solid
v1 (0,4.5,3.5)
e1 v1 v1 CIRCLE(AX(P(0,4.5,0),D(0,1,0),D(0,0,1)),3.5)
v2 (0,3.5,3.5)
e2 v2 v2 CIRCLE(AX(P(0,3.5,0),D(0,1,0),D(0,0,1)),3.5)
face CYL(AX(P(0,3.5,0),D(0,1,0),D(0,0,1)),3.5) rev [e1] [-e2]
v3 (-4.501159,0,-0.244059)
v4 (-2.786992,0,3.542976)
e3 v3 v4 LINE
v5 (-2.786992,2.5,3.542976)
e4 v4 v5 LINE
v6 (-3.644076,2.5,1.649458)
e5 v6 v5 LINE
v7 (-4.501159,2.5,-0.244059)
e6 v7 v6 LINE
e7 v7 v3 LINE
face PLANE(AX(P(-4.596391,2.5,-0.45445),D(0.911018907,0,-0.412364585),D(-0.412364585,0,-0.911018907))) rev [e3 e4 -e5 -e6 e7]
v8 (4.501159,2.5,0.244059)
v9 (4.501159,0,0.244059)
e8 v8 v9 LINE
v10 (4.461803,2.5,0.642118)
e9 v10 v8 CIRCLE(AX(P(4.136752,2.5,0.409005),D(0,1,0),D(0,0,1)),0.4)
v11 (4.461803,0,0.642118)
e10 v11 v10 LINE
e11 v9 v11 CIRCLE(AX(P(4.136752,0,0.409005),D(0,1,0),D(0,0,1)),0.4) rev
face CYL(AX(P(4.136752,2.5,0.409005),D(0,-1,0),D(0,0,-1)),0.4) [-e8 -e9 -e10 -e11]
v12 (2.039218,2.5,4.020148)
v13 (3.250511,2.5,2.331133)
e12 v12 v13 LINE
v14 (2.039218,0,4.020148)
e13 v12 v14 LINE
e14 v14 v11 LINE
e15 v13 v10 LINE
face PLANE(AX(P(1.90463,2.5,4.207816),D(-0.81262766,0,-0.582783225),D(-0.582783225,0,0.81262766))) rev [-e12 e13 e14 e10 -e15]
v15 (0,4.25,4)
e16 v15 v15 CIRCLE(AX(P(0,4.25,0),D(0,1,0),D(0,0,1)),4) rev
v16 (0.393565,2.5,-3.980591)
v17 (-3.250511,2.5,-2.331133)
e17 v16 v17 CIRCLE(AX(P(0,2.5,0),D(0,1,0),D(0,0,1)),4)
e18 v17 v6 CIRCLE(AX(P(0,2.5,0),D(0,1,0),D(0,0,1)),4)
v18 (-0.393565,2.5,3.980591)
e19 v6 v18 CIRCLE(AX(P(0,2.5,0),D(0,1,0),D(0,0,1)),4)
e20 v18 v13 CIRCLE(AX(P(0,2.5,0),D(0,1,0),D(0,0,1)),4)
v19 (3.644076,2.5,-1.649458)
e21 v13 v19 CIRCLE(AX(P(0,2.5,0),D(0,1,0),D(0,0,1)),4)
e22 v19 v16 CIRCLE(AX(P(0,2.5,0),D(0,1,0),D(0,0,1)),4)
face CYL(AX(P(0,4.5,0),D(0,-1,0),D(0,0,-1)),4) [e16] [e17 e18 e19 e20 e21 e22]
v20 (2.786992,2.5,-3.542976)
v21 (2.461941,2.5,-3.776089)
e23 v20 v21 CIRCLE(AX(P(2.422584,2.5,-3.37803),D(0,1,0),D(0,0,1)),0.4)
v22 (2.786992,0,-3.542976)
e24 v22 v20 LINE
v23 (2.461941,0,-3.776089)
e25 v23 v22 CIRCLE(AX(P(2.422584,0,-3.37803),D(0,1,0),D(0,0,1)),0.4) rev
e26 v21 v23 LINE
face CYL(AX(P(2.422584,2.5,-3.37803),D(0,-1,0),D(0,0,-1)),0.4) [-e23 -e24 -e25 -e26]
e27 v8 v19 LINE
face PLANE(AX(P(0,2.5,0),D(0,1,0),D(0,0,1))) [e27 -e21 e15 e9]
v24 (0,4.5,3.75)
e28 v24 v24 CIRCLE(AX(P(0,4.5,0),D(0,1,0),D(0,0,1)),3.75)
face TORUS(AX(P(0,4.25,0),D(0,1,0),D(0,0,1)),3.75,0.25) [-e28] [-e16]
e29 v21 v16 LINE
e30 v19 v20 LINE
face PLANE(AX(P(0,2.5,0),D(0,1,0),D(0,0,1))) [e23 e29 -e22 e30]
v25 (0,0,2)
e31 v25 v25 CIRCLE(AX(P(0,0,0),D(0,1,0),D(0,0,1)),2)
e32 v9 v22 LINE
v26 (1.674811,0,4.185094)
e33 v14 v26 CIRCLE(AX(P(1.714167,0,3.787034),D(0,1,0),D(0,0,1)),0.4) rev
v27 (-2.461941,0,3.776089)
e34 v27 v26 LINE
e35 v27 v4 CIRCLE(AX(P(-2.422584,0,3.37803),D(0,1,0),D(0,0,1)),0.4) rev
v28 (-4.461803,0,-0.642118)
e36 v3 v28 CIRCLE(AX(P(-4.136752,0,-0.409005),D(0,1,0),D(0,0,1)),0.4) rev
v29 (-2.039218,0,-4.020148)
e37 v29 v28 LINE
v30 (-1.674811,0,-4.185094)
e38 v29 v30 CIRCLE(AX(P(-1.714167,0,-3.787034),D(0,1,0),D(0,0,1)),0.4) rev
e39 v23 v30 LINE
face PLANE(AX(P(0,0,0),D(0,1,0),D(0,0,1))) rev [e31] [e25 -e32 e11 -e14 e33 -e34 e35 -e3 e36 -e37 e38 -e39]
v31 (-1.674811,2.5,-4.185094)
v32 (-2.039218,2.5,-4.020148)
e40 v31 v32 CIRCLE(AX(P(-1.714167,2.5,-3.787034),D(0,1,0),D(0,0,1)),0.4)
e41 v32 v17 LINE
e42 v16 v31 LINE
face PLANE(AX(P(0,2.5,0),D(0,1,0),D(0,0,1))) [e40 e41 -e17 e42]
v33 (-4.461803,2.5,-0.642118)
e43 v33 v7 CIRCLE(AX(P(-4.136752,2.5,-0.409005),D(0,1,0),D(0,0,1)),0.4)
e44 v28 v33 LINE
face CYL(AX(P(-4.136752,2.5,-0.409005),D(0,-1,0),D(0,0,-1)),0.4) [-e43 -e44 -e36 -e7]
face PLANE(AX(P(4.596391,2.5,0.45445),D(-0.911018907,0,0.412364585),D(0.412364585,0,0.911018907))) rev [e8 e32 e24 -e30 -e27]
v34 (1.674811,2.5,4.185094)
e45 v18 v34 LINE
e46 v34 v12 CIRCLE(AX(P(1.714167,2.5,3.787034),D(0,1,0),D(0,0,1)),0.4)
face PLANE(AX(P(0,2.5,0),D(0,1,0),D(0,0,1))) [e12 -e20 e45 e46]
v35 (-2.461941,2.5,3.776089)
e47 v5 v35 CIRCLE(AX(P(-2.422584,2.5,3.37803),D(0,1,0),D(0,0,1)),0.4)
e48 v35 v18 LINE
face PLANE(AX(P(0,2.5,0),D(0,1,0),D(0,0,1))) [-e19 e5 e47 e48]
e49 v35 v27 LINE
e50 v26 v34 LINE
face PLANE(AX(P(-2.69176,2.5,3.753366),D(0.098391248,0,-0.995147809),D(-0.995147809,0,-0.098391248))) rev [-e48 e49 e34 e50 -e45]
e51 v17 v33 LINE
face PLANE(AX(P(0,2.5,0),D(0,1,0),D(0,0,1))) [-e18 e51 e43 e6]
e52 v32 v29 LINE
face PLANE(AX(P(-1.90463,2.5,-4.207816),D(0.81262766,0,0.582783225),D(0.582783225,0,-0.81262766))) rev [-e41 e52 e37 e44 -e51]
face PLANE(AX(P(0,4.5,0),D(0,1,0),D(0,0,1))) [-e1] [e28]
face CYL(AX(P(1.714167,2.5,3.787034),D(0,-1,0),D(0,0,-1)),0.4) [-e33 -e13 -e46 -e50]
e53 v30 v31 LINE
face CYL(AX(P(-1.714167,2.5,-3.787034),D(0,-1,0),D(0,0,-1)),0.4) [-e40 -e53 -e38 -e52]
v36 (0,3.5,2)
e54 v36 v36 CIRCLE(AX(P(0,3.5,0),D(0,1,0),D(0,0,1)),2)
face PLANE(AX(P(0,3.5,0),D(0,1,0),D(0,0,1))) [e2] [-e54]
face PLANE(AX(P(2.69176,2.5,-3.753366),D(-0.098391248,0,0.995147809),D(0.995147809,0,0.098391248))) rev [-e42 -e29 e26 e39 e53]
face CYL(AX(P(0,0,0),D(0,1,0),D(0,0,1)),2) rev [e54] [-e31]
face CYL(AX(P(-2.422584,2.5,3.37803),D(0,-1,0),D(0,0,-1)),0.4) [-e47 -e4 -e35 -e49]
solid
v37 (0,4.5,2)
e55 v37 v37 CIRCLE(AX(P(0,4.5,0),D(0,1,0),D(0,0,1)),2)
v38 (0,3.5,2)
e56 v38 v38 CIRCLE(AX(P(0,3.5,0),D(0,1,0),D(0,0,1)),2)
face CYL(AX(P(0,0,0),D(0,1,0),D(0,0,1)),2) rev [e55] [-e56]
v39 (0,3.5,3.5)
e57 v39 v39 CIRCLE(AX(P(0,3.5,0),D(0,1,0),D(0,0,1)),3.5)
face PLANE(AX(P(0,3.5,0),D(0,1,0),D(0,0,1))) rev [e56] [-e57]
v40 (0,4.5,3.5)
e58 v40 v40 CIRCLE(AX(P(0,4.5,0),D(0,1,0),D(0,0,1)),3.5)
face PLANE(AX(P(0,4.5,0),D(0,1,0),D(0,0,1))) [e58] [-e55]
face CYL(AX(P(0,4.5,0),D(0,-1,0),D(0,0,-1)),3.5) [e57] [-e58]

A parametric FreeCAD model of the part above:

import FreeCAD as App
import Part
import Sketcher
from FreeCAD import Vector


def edges_at(feature, points):
    """Names of the edges that pass closest to the given points."""
    edges = feature.Shape.Edges
    near = lambda p: min(range(len(edges)), key=lambda i: edges[i].distToShape(Part.Vertex(*p))[0])
    return sorted({f"Edge{near(p) + 1}" for p in points})

doc = App.newDocument("Part")
body = doc.addObject("PartDesign::Body", "Body")

# Sketch on XZ plane
sketch1 = body.newObject("Sketcher::SketchObject", "Sketch")
sketch1.AttachmentSupport = (doc.getObject("XZ_Plane"), [""])
sketch1.MapMode = "FlatFace"
sketch1.addGeometry([
    Part.LineSegment(Vector(1.9, 4.2, 0), Vector(4.6, 0.5, 0)),  # 0
    Part.LineSegment(Vector(4.6, 0.5, 0), Vector(2.7, -3.8, 0)),  # 1
    Part.LineSegment(Vector(2.7, -3.8, 0), Vector(-1.9, -4.2, 0)),  # 2
    Part.LineSegment(Vector(-1.9, -4.2, 0), Vector(-4.6, -0.5, 0)),  # 3
    Part.LineSegment(Vector(-4.6, -0.5, 0), Vector(-2.7, 3.8, 0)),  # 4
    Part.LineSegment(Vector(-2.7, 3.8, 0), Vector(1.9, 4.2, 0)),  # 5
], False)
sketch1.addConstraint([
    Sketcher.Constraint("Coincident", 0, 2, 1, 1),
    Sketcher.Constraint("Coincident", 1, 2, 2, 1),
    Sketcher.Constraint("Coincident", 2, 2, 3, 1),
    Sketcher.Constraint("Coincident", 3, 2, 4, 1),
    Sketcher.Constraint("Coincident", 4, 2, 5, 1),
    Sketcher.Constraint("Coincident", 5, 2, 0, 1),
    Sketcher.Constraint("Symmetric", 0, 2, 3, 2, -1, 1),
    Sketcher.Constraint("Symmetric", 1, 2, 4, 2, -1, 1),
    Sketcher.Constraint("Symmetric", 2, 2, 5, 2, -1, 1),
    Sketcher.Constraint("Equal", 0, 1),
    Sketcher.Constraint("Equal", 1, 2),
    Sketcher.Constraint("DistanceY", 3, 2, 0, 2, 0.908899),
    Sketcher.Constraint("DistanceX", -1, 1, 0, 2, 4.596391),
    Sketcher.Constraint("DistanceX", -1, 1, 1, 2, 2.69176),
    Sketcher.Constraint("DistanceX", 2, 2, -1, 1, 1.90463),
])
pad1 = body.newObject("PartDesign::Pad", "Pad")
pad1.Profile = sketch1
pad1.Length = 2.5
pad1.Reversed = True
doc.recompute()

fillet = body.newObject("PartDesign::Fillet", "Fillet")
fillet.Base = (pad1, edges_at(pad1, [
    (-2.692, 1.25, 3.753),
    (-4.596, 1.25, -0.454),
    (-1.905, 1.25, -4.208),
    (2.692, 1.25, -3.753),
    (4.596, 1.25, 0.454),
    (1.905, 1.25, 4.208),
]))
fillet.Radius = 0.4

# Sketch on XZ plane
sketch2 = body.newObject("Sketcher::SketchObject", "Sketch001")
sketch2.AttachmentSupport = (doc.getObject("XZ_Plane"), [""])
sketch2.MapMode = "FlatFace"
sketch2.AttachmentOffset = App.Placement(Vector(0, 0, -2.5), App.Rotation())
sketch2.addGeometry(Part.Circle(Vector(0, 0, 0), Vector(0, 0, 1), 4), False)
sketch2.addConstraint([
    Sketcher.Constraint("Coincident", 0, 3, -1, 1),
    Sketcher.Constraint("Diameter", 0, 8.0),
])
pad2 = body.newObject("PartDesign::Pad", "Pad001")
pad2.Profile = sketch2
pad2.Length = 2
pad2.Reversed = True
doc.recompute()

fillet2 = body.newObject("PartDesign::Fillet", "Fillet001")
fillet2.Base = (pad2, edges_at(pad2, [(-0.394, 4.5, 3.981)]))
fillet2.Radius = 0.25

# Sketch on XZ plane
sketch3 = body.newObject("Sketcher::SketchObject", "Sketch002")
sketch3.AttachmentSupport = (doc.getObject("XZ_Plane"), [""])
sketch3.MapMode = "FlatFace"
sketch3.AttachmentOffset = App.Placement(Vector(0, 0, -4.5), App.Rotation())
sketch3.addGeometry([
    Part.Circle(Vector(0, 0, 0), Vector(0, 0, 1), 3.5),
    Part.Circle(Vector(0, 0, 0), Vector(0, 0, 1), 1.2),
], False)
sketch3.addConstraint([
    Sketcher.Constraint("Coincident", 0, 3, -1, 1),
    Sketcher.Constraint("Coincident", 1, 3, -1, 1),
    Sketcher.Constraint("Diameter", 0, 7.0),
    Sketcher.Constraint("Diameter", 1, 2.5),
])
pocket1 = body.newObject("PartDesign::Pocket", "Pocket")
pocket1.Profile = sketch3
pocket1.Length = 1
pocket1.Reversed = True
body2 = doc.addObject("PartDesign::Body", "Body001")

# Sketch on XZ plane
sketch4 = body2.newObject("Sketcher::SketchObject", "Sketch003")
sketch4.AttachmentSupport = (doc.getObject("XZ_Plane001"), [""])
sketch4.MapMode = "FlatFace"
sketch4.AttachmentOffset = App.Placement(Vector(0, 0, -4.5), App.Rotation())
sketch4.addGeometry(Part.Circle(Vector(0, 0, 0), Vector(0, 0, 1), 3.5), False)
sketch4.addConstraint([
    Sketcher.Constraint("Coincident", 0, 3, -1, 1),
    Sketcher.Constraint("Diameter", 0, 7.0),
])
pad3 = body2.newObject("PartDesign::Pad", "Pad002")
pad3.Profile = sketch4
pad3.Length = 1
body3 = doc.addObject("PartDesign::Body", "Body002")

# Sketch on XZ plane
sketch5 = body3.newObject("Sketcher::SketchObject", "Sketch004")
sketch5.AttachmentSupport = (doc.getObject("XZ_Plane002"), [""])
sketch5.MapMode = "FlatFace"
sketch5.AttachmentOffset = App.Placement(Vector(0, 0, -4.5), App.Rotation())
sketch5.addGeometry(Part.Circle(Vector(0, 0, 0), Vector(0, 0, 1), 2), False)
sketch5.addConstraint([
    Sketcher.Constraint("Coincident", 0, 3, -1, 1),
    Sketcher.Constraint("Diameter", 0, 4.0),
])
pad4 = body3.newObject("PartDesign::Pad", "Pad003")
pad4.Profile = sketch5
pad4.Length = 8.639593
doc.recompute()

body4 = doc.addObject("PartDesign::Body", "Body003")
body4.BaseFeature = body3
boolean = body.newObject("PartDesign::Boolean", "Boolean")
boolean.Type = "Cut"
boolean.addObjects([body4])
doc.recompute()

boolean2 = body2.newObject("PartDesign::Boolean", "Boolean001")
boolean2.Type = "Cut"
boolean2.addObjects([body3])

doc.recompute()
